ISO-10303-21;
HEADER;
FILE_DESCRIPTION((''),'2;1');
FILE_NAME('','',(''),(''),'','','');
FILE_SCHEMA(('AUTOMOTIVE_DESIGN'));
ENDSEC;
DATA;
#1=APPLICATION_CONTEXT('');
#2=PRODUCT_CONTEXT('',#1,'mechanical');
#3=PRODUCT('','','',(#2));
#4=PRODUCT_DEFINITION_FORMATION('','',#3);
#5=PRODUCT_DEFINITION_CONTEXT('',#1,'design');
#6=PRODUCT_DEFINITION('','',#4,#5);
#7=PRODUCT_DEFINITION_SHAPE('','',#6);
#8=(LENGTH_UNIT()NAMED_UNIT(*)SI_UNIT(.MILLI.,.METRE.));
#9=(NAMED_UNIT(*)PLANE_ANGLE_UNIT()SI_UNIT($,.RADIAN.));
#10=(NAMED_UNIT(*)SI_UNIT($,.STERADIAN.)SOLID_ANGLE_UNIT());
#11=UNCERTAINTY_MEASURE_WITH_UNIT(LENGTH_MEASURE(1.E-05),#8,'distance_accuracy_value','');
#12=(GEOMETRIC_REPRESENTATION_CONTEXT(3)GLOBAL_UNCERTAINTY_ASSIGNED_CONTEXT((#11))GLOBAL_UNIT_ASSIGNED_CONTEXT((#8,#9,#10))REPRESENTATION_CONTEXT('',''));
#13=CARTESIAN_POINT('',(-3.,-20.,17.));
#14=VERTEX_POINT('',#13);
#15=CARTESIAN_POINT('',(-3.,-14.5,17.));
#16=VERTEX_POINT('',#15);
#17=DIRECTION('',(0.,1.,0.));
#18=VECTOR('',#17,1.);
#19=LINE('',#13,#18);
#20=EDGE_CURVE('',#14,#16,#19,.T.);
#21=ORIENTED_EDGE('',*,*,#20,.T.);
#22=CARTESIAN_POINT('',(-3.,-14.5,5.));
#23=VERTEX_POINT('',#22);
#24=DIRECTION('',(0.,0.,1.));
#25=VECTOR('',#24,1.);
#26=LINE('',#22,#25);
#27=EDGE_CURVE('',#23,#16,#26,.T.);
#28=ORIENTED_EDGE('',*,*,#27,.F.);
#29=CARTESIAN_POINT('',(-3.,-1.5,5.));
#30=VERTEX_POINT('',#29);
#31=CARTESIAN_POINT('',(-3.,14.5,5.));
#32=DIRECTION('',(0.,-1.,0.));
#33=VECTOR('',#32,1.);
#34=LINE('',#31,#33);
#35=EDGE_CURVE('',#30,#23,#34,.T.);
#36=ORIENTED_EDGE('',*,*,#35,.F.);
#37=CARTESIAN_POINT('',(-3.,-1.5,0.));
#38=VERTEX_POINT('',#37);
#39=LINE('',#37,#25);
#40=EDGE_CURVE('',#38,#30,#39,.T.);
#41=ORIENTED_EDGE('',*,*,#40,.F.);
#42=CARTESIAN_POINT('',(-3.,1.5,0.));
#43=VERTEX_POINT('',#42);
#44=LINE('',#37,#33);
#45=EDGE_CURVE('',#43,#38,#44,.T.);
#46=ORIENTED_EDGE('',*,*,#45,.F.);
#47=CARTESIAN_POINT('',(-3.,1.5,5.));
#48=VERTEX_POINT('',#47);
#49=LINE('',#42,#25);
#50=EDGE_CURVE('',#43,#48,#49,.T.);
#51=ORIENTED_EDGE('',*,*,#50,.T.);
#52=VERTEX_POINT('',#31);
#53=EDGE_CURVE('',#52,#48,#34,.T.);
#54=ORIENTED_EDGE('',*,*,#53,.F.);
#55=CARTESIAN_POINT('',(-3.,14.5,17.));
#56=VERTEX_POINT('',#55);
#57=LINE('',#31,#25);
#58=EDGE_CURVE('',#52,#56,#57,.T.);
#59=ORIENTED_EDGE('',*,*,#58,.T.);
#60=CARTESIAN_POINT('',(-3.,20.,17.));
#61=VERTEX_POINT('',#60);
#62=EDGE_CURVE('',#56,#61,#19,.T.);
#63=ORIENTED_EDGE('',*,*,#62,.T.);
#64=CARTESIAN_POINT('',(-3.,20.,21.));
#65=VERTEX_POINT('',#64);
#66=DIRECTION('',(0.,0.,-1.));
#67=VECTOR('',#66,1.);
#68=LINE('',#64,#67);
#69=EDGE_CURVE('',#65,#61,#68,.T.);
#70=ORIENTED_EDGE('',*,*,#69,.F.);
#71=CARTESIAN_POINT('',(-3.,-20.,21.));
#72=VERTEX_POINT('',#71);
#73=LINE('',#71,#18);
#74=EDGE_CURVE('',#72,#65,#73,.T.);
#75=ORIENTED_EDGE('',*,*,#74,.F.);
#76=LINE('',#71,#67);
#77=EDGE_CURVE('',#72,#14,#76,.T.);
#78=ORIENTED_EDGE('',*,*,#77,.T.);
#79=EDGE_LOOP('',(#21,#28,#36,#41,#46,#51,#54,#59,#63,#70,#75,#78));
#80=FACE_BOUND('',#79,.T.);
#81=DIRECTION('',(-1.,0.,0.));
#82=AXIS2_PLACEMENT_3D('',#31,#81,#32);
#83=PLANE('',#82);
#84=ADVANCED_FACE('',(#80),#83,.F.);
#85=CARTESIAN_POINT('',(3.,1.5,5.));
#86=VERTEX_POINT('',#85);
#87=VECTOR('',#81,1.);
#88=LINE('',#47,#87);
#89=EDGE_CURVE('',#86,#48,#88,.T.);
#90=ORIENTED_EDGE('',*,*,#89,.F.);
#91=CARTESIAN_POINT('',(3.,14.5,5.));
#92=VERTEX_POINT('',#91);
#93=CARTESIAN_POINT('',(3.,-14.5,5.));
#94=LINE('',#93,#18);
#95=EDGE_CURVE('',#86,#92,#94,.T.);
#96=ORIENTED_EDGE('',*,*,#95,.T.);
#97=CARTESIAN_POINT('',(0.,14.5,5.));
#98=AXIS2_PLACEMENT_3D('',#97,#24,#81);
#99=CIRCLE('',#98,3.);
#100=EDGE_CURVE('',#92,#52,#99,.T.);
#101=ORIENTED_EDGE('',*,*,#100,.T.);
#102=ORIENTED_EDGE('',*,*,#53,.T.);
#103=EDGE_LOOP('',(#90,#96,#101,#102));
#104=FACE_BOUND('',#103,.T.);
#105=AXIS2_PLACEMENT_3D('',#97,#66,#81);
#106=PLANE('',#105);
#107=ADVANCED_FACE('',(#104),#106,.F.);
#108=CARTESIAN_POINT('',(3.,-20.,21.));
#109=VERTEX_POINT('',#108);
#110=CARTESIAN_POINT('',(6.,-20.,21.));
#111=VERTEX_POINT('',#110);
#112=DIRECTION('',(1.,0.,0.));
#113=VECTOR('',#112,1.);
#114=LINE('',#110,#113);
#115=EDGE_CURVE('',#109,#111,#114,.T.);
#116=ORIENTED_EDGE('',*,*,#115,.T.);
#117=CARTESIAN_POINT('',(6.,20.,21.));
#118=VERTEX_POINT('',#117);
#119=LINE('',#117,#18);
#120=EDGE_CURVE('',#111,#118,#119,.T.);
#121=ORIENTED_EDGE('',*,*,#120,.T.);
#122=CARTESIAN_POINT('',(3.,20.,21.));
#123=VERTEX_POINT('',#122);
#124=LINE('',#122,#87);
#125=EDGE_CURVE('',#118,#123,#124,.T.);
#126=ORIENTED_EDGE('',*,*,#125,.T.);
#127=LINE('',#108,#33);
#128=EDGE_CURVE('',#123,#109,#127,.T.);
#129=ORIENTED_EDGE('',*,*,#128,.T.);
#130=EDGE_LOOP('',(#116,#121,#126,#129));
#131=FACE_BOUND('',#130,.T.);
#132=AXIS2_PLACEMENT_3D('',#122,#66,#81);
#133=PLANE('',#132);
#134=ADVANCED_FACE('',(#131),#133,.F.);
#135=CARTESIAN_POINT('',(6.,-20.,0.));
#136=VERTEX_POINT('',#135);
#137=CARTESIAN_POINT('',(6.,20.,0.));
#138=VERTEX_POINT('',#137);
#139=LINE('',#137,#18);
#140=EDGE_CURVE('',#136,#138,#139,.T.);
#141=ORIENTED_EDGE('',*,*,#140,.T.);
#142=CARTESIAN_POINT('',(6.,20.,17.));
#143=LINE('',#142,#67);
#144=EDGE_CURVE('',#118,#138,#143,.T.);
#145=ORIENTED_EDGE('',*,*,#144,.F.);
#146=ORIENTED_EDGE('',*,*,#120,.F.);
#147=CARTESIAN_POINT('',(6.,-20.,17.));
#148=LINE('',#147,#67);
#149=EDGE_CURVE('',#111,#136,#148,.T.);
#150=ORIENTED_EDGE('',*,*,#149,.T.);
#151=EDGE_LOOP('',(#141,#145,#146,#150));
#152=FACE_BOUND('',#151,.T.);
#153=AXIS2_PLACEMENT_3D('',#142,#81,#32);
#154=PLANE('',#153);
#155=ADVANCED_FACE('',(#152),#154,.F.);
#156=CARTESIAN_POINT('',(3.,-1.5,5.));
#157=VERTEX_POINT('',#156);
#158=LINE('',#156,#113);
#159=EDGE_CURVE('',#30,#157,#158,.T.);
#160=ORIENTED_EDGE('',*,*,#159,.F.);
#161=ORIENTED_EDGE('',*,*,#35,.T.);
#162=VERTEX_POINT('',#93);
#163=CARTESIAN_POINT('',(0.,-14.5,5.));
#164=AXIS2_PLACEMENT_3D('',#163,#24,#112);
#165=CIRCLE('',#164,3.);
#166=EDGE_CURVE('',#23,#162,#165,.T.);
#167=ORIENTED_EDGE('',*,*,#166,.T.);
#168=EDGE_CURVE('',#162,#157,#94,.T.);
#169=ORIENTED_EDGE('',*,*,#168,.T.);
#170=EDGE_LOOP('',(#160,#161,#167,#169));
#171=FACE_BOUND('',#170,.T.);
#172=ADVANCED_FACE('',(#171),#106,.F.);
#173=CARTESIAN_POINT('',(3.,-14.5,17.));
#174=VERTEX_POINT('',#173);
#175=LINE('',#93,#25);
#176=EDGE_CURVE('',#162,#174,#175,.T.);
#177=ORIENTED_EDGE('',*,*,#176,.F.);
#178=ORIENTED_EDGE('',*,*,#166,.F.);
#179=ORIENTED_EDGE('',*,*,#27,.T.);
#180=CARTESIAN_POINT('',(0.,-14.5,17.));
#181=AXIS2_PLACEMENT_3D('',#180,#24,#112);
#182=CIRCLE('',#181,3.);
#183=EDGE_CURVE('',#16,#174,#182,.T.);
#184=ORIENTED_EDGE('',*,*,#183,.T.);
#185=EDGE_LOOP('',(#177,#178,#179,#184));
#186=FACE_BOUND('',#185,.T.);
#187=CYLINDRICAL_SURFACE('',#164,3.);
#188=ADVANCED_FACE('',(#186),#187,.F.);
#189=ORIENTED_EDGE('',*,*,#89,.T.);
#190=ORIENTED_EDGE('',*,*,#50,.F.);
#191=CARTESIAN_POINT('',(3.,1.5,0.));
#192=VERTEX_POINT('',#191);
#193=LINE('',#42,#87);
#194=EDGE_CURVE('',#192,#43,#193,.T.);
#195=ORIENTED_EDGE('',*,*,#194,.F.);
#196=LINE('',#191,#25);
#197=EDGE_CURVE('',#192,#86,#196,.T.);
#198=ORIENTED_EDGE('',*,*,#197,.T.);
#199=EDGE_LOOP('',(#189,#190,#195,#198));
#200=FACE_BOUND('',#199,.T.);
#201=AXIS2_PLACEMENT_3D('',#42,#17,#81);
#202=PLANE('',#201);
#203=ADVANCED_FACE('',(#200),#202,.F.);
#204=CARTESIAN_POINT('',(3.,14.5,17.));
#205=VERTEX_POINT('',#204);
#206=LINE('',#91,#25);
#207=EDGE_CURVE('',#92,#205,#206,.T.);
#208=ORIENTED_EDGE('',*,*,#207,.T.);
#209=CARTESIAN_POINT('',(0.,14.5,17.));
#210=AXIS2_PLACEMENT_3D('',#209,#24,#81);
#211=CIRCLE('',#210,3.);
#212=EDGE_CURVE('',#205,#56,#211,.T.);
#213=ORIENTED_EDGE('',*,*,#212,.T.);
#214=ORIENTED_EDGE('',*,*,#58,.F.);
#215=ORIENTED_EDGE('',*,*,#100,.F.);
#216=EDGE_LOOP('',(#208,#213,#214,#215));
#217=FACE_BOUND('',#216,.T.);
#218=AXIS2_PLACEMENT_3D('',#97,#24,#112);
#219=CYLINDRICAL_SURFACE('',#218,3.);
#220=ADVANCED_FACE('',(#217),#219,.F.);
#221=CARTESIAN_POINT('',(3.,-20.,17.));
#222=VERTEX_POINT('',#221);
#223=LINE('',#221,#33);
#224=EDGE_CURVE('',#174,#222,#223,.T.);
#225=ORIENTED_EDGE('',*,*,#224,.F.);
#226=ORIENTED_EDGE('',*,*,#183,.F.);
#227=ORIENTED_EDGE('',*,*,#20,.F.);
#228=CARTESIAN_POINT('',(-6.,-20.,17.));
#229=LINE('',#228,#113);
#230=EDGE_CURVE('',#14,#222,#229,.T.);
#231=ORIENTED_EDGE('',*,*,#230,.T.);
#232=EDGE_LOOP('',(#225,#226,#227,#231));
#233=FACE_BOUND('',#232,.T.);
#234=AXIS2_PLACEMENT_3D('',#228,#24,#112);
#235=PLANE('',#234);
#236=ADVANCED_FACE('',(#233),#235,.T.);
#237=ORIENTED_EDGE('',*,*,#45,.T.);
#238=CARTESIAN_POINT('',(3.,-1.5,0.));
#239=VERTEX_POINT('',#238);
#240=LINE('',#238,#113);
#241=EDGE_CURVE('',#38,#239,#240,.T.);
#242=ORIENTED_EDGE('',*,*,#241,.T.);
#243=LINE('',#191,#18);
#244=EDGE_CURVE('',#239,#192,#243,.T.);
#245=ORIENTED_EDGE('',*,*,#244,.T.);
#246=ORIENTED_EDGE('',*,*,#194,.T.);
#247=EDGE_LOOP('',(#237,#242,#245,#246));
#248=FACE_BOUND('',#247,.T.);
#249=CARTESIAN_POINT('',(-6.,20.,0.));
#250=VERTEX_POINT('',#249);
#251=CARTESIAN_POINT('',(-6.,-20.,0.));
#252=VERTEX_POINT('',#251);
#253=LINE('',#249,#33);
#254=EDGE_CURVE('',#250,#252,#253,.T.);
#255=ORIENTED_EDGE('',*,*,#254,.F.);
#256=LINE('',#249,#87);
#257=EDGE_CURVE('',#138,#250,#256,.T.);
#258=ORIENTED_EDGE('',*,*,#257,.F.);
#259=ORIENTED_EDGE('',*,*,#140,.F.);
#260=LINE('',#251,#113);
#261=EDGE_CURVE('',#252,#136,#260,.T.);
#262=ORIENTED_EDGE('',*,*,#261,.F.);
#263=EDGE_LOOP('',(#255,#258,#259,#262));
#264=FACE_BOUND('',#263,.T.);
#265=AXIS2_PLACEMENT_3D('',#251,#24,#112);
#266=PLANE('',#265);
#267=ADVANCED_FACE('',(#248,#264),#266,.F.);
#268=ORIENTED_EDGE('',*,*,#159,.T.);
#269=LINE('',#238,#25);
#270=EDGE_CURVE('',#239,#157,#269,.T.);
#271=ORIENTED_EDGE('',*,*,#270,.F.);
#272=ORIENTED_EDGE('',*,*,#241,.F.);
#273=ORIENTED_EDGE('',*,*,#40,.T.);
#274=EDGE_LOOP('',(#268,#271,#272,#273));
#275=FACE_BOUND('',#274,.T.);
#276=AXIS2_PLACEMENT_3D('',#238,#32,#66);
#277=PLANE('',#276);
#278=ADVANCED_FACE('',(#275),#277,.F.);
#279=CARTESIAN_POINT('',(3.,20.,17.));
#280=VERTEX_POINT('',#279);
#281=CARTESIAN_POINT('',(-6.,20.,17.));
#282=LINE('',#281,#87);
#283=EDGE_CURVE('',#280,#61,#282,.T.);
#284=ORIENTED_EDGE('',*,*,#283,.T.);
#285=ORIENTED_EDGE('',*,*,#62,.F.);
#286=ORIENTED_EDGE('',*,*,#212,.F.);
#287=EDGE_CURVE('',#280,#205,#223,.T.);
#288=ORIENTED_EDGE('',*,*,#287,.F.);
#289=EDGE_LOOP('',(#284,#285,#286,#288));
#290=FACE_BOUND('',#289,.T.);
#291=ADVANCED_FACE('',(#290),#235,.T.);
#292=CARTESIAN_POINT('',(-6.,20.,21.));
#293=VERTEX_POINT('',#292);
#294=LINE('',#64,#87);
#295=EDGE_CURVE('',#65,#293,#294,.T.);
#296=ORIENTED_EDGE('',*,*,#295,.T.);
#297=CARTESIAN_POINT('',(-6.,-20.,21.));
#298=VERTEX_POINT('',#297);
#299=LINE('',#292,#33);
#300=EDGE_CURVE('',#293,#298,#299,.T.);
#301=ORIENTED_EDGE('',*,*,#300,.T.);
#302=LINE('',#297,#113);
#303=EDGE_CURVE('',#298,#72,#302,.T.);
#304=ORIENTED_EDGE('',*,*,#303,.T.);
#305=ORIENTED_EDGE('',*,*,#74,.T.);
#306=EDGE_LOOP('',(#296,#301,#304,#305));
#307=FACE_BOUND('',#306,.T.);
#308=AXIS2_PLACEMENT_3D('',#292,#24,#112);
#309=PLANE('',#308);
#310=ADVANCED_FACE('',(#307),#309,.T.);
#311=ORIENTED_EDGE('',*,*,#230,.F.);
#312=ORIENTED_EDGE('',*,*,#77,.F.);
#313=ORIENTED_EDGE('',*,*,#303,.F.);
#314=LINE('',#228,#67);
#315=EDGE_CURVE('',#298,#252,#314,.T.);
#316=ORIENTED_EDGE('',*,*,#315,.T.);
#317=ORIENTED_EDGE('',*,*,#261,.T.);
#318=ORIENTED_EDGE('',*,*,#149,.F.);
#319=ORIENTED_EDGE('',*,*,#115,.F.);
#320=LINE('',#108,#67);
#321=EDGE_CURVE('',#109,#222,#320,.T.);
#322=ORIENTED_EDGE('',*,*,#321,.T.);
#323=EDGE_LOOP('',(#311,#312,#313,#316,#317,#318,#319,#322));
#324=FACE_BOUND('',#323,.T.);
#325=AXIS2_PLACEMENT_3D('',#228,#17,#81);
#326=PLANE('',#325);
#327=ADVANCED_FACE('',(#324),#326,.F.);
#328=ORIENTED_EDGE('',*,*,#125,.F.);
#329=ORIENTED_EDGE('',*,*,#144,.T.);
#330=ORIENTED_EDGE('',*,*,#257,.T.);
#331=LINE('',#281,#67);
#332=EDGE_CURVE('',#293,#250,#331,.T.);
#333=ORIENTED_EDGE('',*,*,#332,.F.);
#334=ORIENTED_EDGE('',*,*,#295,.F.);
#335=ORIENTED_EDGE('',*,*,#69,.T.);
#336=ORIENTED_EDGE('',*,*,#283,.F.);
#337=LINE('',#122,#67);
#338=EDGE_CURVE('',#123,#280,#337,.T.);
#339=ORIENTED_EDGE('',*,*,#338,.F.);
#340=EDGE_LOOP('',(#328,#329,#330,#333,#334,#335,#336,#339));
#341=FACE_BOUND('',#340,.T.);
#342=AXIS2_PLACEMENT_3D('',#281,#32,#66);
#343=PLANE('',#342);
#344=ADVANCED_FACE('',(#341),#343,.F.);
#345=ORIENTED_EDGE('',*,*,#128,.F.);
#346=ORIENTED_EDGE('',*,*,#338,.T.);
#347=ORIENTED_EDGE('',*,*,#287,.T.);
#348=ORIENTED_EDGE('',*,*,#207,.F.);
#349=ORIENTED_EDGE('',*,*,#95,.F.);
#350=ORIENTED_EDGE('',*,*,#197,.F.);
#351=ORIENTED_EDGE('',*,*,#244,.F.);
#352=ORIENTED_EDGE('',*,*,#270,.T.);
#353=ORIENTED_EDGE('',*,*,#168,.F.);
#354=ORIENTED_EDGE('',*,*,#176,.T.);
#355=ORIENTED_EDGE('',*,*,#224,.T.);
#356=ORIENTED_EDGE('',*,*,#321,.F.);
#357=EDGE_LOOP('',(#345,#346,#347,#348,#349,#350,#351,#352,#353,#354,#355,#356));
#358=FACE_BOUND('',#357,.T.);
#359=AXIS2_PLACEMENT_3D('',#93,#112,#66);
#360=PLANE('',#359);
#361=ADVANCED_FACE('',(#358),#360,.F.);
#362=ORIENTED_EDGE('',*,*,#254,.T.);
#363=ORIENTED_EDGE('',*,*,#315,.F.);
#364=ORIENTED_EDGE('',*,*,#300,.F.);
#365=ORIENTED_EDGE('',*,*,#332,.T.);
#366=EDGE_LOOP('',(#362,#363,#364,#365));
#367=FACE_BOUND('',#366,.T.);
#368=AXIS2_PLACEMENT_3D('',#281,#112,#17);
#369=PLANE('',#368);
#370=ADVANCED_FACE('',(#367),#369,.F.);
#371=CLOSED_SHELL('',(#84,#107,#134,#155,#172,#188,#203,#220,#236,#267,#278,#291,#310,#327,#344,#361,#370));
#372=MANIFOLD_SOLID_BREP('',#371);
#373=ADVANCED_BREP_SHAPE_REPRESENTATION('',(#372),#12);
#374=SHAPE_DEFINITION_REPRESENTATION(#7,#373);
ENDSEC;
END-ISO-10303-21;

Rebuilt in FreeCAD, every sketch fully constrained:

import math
import FreeCAD as App
import Part
import Sketcher
from FreeCAD import Vector
Q = App.Units.Quantity

doc = App.newDocument("Part")
body = doc.addObject("PartDesign::Body", "Body")

# Sketch on XY plane
sketch1 = doc.addObject("Sketcher::SketchObject", "Sketch")
body.addObject(sketch1)
sketch1.AttachmentSupport = (doc.XY_Plane, [""])
sketch1.MapMode = "FlatFace"
sketch1.addGeometry([
    Part.LineSegment(Vector(-6, 20, 0), Vector(-6, -20, 0)),
    Part.LineSegment(Vector(-6, -20, 0), Vector(6, -20, 0)),
    Part.LineSegment(Vector(6, -20, 0), Vector(6, 20, 0)),
    Part.LineSegment(Vector(6, 20, 0), Vector(-6, 20, 0)),
], False)
sketch1.addConstraint([
    Sketcher.Constraint("Coincident", 0, 2, 1, 1),
    Sketcher.Constraint("Coincident", 1, 2, 2, 1),
    Sketcher.Constraint("Coincident", 2, 2, 3, 1),
    Sketcher.Constraint("Coincident", 3, 2, 0, 1),
    Sketcher.Constraint("Vertical", 0),
    Sketcher.Constraint("Horizontal", 1),
    Sketcher.Constraint("Vertical", 2),
    Sketcher.Constraint("Horizontal", 3),
    Sketcher.Constraint("Symmetric", 0, 2, 2, 2, -1, 1),
    Sketcher.Constraint("DistanceX", 1, 1, 1, 2, Q("12 mm")),
    Sketcher.Constraint("DistanceY", 0, 2, 0, 1, Q("40 mm")),
])
pad1 = doc.addObject("PartDesign::Pad", "Pad")
body.addObject(pad1)
pad1.Profile = sketch1
pad1.Length = 17

# Sketch on XY plane
sketch2 = doc.addObject("Sketcher::SketchObject", "Sketch001")
body.addObject(sketch2)
sketch2.AttachmentSupport = (doc.XY_Plane, [""])
sketch2.MapMode = "FlatFace"
sketch2.AttachmentOffset = App.Placement(Vector(0, 0, 17), App.Rotation())
sketch2.addGeometry([
    Part.LineSegment(Vector(-3, 14.5, 0), Vector(-3, -14.5, 0)),
    Part.ArcOfCircle(Part.Circle(Vector(0, -14.5, 0), Vector(0, 0, 1), 3), math.radians(180), math.radians(360)),
    Part.LineSegment(Vector(3, -14.5, 0), Vector(3, 14.5, 0)),
    Part.ArcOfCircle(Part.Circle(Vector(0, 14.5, 0), Vector(0, 0, 1), 3), math.radians(0), math.radians(180)),
], False)
sketch2.addConstraint([
    Sketcher.Constraint("Tangent", 0, 2, 1, 1),
    Sketcher.Constraint("Tangent", 1, 2, 2, 1),
    Sketcher.Constraint("Tangent", 2, 2, 3, 1),
    Sketcher.Constraint("Tangent", 3, 2, 0, 1),
    Sketcher.Constraint("Vertical", 0),
    Sketcher.Constraint("Vertical", 2),
    Sketcher.Constraint("Symmetric", 1, 3, 3, 3, -1, 1),
    Sketcher.Constraint("Radius", 1, Q("3 mm")),
    Sketcher.Constraint("DistanceY", 0, 2, 0, 1, Q("29 mm")),
])
pocket1 = doc.addObject("PartDesign::Pocket", "Pocket")
body.addObject(pocket1)
pocket1.Profile = sketch2
pocket1.Length = 12

# Sketch on XY plane
sketch3 = doc.addObject("Sketcher::SketchObject", "Sketch002")
body.addObject(sketch3)
sketch3.AttachmentSupport = (doc.XY_Plane, [""])
sketch3.MapMode = "FlatFace"
sketch3.AttachmentOffset = App.Placement(Vector(0, 0, 5), App.Rotation())
sketch3.addGeometry([
    Part.LineSegment(Vector(-3, 1.5, 0), Vector(-3, -1.5, 0)),
    Part.LineSegment(Vector(-3, -1.5, 0), Vector(3, -1.5, 0)),
    Part.LineSegment(Vector(3, -1.5, 0), Vector(3, 1.5, 0)),
    Part.LineSegment(Vector(3, 1.5, 0), Vector(-3, 1.5, 0)),
], False)
sketch3.addConstraint([
    Sketcher.Constraint("Coincident", 0, 2, 1, 1),
    Sketcher.Constraint("Coincident", 1, 2, 2, 1),
    Sketcher.Constraint("Coincident", 2, 2, 3, 1),
    Sketcher.Constraint("Coincident", 3, 2, 0, 1),
    Sketcher.Constraint("Vertical", 0),
    Sketcher.Constraint("Horizontal", 1),
    Sketcher.Constraint("Vertical", 2),
    Sketcher.Constraint("Horizontal", 3),
    Sketcher.Constraint("Symmetric", 0, 2, 2, 2, -1, 1),
    Sketcher.Constraint("DistanceX", 1, 1, 1, 2, Q("6 mm")),
    Sketcher.Constraint("DistanceY", 0, 2, 0, 1, Q("3 mm")),
])
pocket2 = doc.addObject("PartDesign::Pocket", "Pocket001")
body.addObject(pocket2)
pocket2.Profile = sketch3
pocket2.Type = "ThroughAll"

# Sketch on XY plane
sketch4 = doc.addObject("Sketcher::SketchObject", "Sketch003")
body.addObject(sketch4)
sketch4.AttachmentSupport = (doc.XY_Plane, [""])
sketch4.MapMode = "FlatFace"
sketch4.AttachmentOffset = App.Placement(Vector(0, 0, 17), App.Rotation())
sketch4.addGeometry([
    Part.LineSegment(Vector(3, 20, 0), Vector(3, -20, 0)),  # 0
    Part.LineSegment(Vector(3, -20, 0), Vector(6, -20, 0)),  # 1
    Part.LineSegment(Vector(6, -20, 0), Vector(6, 20, 0)),  # 2
    Part.LineSegment(Vector(6, 20, 0), Vector(3, 20, 0)),  # 3
    Part.LineSegment(Vector(-6, 20, 0), Vector(-6, -20, 0)),  # 4
    Part.LineSegment(Vector(-6, -20, 0), Vector(-3, -20, 0)),  # 5
    Part.LineSegment(Vector(-3, -20, 0), Vector(-3, 20, 0)),  # 6
    Part.LineSegment(Vector(-3, 20, 0), Vector(-6, 20, 0)),  # 7
], False)
sketch4.addConstraint([
    Sketcher.Constraint("Coincident", 0, 2, 1, 1),
    Sketcher.Constraint("Coincident", 1, 2, 2, 1),
    Sketcher.Constraint("Coincident", 2, 2, 3, 1),
    Sketcher.Constraint("Coincident", 3, 2, 0, 1),
    Sketcher.Constraint("Coincident", 4, 2, 5, 1),
    Sketcher.Constraint("Coincident", 5, 2, 6, 1),
    Sketcher.Constraint("Coincident", 6, 2, 7, 1),
    Sketcher.Constraint("Coincident", 7, 2, 4, 1),
    Sketcher.Constraint("Vertical", 0),
    Sketcher.Constraint("Horizontal", 1),
    Sketcher.Constraint("Vertical", 2),
    Sketcher.Constraint("Horizontal", 3),
    Sketcher.Constraint("Vertical", 4),
    Sketcher.Constraint("Horizontal", 5),
    Sketcher.Constraint("Vertical", 6),
    Sketcher.Constraint("Horizontal", 7),
    Sketcher.Constraint("Symmetric", 2, 2, 4, 2, -1, 1),
    Sketcher.Constraint("Symmetric", 0, 2, 6, 2, -1, 1),
    Sketcher.Constraint("Horizontal", 1, 2, 4, 2),
    Sketcher.Constraint("DistanceX", 1, 1, 1, 2, Q("3 mm")),
    Sketcher.Constraint("DistanceY", 0, 2, 0, 1, Q("40 mm")),
    Sketcher.Constraint("DistanceX", -1, 1, 0, 2, Q("3 mm")),
])
pad2 = doc.addObject("PartDesign::Pad", "Pad001")
body.addObject(pad2)
pad2.Profile = sketch4
pad2.Length = 4

doc.recompute()
